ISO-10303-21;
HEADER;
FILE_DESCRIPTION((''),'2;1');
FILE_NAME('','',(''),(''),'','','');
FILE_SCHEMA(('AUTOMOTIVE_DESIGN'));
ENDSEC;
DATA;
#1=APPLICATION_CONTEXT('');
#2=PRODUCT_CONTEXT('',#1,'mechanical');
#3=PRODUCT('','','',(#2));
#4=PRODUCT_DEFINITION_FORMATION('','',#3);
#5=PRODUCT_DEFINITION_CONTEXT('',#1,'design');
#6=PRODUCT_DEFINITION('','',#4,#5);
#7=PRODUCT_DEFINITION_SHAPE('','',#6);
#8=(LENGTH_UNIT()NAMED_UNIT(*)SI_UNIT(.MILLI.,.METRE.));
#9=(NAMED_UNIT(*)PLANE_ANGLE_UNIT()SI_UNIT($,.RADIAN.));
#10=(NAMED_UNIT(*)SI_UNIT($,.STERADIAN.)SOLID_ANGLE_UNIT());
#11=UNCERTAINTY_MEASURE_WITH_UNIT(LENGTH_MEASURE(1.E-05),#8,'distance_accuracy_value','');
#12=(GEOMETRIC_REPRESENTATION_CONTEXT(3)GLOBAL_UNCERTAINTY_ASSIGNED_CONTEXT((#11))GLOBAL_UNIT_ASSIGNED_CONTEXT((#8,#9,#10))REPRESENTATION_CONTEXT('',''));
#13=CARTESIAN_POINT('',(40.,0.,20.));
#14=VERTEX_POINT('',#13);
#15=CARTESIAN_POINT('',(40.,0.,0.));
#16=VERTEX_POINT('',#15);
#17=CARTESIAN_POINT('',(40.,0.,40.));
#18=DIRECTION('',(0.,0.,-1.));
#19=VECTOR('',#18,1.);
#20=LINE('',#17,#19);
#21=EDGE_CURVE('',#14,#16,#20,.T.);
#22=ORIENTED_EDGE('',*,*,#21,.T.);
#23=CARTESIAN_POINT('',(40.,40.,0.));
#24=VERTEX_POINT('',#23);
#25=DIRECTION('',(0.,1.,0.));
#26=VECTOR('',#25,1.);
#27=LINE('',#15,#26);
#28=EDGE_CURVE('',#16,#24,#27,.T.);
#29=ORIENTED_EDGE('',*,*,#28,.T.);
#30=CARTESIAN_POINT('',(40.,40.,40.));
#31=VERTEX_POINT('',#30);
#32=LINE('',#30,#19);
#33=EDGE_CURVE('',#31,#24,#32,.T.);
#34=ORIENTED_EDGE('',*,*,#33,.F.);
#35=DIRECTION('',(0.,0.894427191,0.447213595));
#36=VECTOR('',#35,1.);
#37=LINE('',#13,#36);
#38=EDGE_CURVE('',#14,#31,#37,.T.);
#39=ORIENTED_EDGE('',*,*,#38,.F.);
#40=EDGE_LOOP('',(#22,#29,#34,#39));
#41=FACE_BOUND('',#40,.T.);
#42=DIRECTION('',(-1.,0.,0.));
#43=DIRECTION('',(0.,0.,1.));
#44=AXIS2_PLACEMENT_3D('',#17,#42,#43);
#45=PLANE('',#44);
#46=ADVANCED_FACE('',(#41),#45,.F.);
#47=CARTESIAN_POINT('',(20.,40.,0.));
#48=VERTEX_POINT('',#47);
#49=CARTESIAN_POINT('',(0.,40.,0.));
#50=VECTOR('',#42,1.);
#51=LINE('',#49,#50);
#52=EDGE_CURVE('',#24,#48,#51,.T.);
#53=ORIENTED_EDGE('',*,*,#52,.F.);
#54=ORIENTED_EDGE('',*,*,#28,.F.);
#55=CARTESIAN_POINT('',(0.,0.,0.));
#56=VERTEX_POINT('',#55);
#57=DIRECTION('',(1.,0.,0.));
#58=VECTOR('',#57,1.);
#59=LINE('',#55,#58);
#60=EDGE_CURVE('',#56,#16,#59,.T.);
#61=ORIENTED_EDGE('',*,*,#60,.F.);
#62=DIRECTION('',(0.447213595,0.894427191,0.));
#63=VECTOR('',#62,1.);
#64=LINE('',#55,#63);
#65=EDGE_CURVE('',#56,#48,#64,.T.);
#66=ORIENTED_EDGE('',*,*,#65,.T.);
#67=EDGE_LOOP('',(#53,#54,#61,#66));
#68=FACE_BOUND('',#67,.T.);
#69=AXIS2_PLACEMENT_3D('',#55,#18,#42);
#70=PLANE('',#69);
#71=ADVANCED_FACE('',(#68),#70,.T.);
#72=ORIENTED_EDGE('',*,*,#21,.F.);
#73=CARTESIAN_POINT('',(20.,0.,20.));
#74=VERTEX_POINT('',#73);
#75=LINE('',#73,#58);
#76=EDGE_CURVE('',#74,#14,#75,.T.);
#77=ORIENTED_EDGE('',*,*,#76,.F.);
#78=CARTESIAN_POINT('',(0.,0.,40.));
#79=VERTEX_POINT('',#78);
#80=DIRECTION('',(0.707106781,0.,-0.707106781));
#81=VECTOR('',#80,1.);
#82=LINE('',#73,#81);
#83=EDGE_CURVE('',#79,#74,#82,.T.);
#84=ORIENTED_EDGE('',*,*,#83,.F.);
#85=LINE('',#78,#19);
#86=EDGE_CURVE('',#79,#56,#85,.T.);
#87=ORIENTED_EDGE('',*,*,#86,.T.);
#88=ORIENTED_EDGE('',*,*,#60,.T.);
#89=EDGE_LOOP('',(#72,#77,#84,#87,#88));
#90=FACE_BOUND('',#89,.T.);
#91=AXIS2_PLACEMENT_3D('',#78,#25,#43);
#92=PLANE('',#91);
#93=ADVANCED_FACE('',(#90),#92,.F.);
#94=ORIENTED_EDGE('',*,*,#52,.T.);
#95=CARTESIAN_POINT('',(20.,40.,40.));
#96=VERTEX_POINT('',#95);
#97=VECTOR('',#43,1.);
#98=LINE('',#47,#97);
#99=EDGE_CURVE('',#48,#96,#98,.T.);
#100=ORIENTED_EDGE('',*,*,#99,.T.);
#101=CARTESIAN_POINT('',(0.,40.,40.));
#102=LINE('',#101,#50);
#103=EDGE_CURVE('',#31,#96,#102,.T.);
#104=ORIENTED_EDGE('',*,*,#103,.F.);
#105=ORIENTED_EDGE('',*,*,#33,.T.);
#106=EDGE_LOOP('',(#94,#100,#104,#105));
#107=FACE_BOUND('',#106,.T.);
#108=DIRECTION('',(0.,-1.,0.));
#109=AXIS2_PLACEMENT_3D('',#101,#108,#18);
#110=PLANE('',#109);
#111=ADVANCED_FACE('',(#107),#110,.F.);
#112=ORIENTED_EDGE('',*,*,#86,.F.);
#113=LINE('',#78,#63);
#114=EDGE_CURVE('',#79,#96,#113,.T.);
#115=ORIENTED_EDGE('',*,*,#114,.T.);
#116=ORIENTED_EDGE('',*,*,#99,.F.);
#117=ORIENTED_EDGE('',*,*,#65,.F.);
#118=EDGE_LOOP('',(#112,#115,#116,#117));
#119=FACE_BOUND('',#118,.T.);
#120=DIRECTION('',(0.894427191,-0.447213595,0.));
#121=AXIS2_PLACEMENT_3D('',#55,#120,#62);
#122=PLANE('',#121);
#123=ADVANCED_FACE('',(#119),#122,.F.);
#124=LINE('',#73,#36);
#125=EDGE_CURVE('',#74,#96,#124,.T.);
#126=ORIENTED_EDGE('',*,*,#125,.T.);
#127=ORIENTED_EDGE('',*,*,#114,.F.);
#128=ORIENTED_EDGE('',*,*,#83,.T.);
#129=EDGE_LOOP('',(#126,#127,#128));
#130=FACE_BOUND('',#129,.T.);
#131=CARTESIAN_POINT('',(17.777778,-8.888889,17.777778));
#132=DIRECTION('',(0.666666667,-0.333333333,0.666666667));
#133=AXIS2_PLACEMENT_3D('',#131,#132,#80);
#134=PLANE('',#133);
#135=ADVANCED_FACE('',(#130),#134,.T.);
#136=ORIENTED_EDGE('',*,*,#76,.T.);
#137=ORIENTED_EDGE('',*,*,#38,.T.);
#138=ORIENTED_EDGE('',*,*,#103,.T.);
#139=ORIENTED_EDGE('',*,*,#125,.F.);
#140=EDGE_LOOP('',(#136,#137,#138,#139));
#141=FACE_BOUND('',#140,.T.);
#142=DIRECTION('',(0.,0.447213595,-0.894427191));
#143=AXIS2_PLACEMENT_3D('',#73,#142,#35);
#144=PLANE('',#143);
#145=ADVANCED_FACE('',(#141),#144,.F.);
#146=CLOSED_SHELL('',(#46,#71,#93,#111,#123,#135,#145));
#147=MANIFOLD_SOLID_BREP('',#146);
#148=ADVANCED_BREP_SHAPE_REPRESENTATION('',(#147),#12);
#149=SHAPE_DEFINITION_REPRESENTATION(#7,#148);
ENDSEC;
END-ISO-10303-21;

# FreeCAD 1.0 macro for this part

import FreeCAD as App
import Part
import Sketcher


def add_polygon(sketch, points):
    """Adds a closed chain of lines whose ends are joined by coincident constraints."""
    first, n = sketch.GeometryCount, len(points)
    for a, b in zip(points, points[1:] + points[:1]):
        sketch.addGeometry(Part.LineSegment(App.Vector(*a, 0), App.Vector(*b, 0)), False)
    for i in range(n):
        sketch.addConstraint(Sketcher.Constraint("Coincident", first + i, 2, first + (i + 1) % n, 1))

doc = App.newDocument("Part")
body = doc.addObject("PartDesign::Body", "Body")

# Sketch on XY plane
sketch1 = body.newObject("Sketcher::SketchObject", "Sketch")
sketch1.AttachmentSupport = (doc.getObject("XY_Plane"), [""])
sketch1.MapMode = "FlatFace"
add_polygon(sketch1, [(0, 40), (0, 0), (40, 0), (40, 40)])  # lines 0-3
sketch1.addConstraint(Sketcher.Constraint("Vertical", 0))
sketch1.addConstraint(Sketcher.Constraint("Horizontal", 1))
sketch1.addConstraint(Sketcher.Constraint("Vertical", 2))
sketch1.addConstraint(Sketcher.Constraint("Horizontal", 3))
sketch1.addConstraint(Sketcher.Constraint("Coincident", 0, 2, -1, 1))
sketch1.addConstraint(Sketcher.Constraint("Equal", 3, 0))
sketch1.addConstraint(Sketcher.Constraint("DistanceX", 1, 1, 1, 2, 40.0))
pad1 = body.newObject("PartDesign::Pad", "Pad")
pad1.Profile = sketch1
pad1.Length = 40

# Sketch on XY plane
sketch2 = body.newObject("Sketcher::SketchObject", "Sketch001")
sketch2.AttachmentSupport = (doc.getObject("XY_Plane"), [""])
sketch2.MapMode = "FlatFace"
sketch2.AttachmentOffset = App.Placement(App.Vector(0, 0, 40), App.Rotation())
add_polygon(sketch2, [(0, 0), (20, 40), (0, 40)])  # lines 0-2
sketch2.addConstraint(Sketcher.Constraint("Horizontal", 1))
sketch2.addConstraint(Sketcher.Constraint("Vertical", 2))
sketch2.addConstraint(Sketcher.Constraint("Coincident", 2, 2, -1, 1))
sketch2.addConstraint(Sketcher.Constraint("DistanceX", 1, 2, 1, 1, 20.0))
sketch2.addConstraint(Sketcher.Constraint("DistanceY", 2, 2, 2, 1, 40.0))
pocket1 = body.newObject("PartDesign::Pocket", "Pocket")
pocket1.Profile = sketch2
pocket1.Length = 40

# Sketch on YZ plane
sketch3 = body.newObject("Sketcher::SketchObject", "Sketch002")
sketch3.AttachmentSupport = (doc.getObject("YZ_Plane"), [""])
sketch3.MapMode = "FlatFace"
sketch3.AttachmentOffset = App.Placement(App.Vector(0, 0, 40), App.Rotation())
add_polygon(sketch3, [(0, 20), (40, 40), (0, 40)])  # lines 0-2
sketch3.addConstraint(Sketcher.Constraint("Horizontal", 1))
sketch3.addConstraint(Sketcher.Constraint("Vertical", 2))
sketch3.addConstraint(Sketcher.Constraint("PointOnObject", 1, 2, -2))
sketch3.addConstraint(Sketcher.Constraint("DistanceX", 1, 2, 1, 1, 40.0))
sketch3.addConstraint(Sketcher.Constraint("DistanceY", 2, 2, 2, 1, 20.0))
sketch3.addConstraint(Sketcher.Constraint("DistanceY", -1, 1, 0, 2, 40.0))
pocket2 = body.newObject("PartDesign::Pocket", "Pocket001")
pocket2.Profile = sketch3
pocket2.Length = 20

# Sketch on an angled plane
sketch4 = body.newObject("Sketcher::SketchObject", "Sketch003")
sketch4.Placement = App.Placement(App.Vector(17.777778, -8.888889, 17.777778), App.Rotation(App.Vector(0.745355992, 0.298142397, -0.596284794), App.Vector(0, 0.894427191, 0.447213595), App.Vector(0.666666667, -0.333333333, 0.666666667), "ZXY"))
add_polygon(sketch4, [(3, 9), (3, 54), (-24, 18)])  # lines 0-2
sketch4.addConstraint(Sketcher.Constraint("Vertical", 0))
sketch4.addConstraint(Sketcher.Constraint("DistanceY", 0, 1, 0, 2, 44.72136))
sketch4.addConstraint(Sketcher.Constraint("Distance", 1, 44.72136))
sketch4.addConstraint(Sketcher.Constraint("Distance", 2, 28.284271))
sketch4.addConstraint(Sketcher.Constraint("DistanceY", -1, 1, 0, 2, 53.665631))
sketch4.addConstraint(Sketcher.Constraint("DistanceX", 1, 2, -1, 1, 23.851392))
pocket3 = body.newObject("PartDesign::Pocket", "Pocket002")
pocket3.Profile = sketch4
pocket3.Length = 20
pocket3.Reversed = True

doc.recompute()
